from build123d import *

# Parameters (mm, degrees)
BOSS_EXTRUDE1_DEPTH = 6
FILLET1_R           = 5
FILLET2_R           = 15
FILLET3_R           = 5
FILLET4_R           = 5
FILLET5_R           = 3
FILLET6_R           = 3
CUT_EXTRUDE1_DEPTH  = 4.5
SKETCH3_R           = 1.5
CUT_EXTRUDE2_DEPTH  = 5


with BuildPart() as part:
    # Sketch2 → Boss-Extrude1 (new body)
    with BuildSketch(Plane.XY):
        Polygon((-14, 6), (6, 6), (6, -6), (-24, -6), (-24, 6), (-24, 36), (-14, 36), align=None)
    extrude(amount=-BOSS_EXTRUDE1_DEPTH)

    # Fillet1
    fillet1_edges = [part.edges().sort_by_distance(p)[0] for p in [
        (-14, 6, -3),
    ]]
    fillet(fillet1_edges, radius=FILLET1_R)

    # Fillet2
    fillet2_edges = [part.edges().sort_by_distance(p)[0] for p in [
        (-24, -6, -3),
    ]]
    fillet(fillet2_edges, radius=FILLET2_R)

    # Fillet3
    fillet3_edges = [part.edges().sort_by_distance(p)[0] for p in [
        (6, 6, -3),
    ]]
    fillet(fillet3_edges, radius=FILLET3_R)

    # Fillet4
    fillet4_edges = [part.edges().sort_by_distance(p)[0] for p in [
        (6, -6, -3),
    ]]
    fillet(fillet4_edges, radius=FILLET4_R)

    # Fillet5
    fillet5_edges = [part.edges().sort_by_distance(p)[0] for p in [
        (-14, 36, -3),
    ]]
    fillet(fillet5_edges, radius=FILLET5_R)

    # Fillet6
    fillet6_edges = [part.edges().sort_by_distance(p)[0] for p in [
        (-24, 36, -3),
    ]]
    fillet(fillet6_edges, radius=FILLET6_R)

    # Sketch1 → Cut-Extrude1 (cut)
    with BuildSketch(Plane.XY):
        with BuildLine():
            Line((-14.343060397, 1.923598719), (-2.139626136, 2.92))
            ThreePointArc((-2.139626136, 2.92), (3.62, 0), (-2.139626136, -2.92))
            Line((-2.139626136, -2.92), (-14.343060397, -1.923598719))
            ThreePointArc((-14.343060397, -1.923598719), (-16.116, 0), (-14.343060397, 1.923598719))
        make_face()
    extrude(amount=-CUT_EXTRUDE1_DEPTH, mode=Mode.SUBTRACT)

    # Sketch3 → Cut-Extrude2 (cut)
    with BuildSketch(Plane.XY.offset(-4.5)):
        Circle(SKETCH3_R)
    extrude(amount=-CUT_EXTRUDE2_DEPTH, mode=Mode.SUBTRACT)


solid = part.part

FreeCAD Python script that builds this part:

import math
import FreeCAD as App
import Part
import Sketcher
from FreeCAD import Vector


def edges_at(feature, points):
    """Names of the edges that pass closest to the given points."""
    edges = feature.Shape.Edges
    near = lambda p: min(range(len(edges)), key=lambda i: edges[i].distToShape(Part.Vertex(*p))[0])
    return sorted({f"Edge{near(p) + 1}" for p in points})


def add_polygon(sketch, points):
    """Adds a closed chain of lines whose ends are joined by coincident constraints."""
    first, n = sketch.GeometryCount, len(points)
    for a, b in zip(points, points[1:] + points[:1]):
        sketch.addGeometry(Part.LineSegment(App.Vector(*a, 0), App.Vector(*b, 0)), False)
    for i in range(n):
        sketch.addConstraint(Sketcher.Constraint("Coincident", first + i, 2, first + (i + 1) % n, 1))

doc = App.newDocument("Part")
body = doc.addObject("PartDesign::Body", "Body")

sketch1 = doc.addObject("Sketcher::SketchObject", "Sketch")
body.addObject(sketch1)
sketch1.AttachmentSupport = (doc.XY_Plane, [""])
sketch1.MapMode = "FlatFace"
add_polygon(sketch1, [(6, 6), (-14, 6), (-14, 36), (-24, 36), (-24, -6), (6, -6)])
sketch1.addConstraint([
    Sketcher.Constraint("Horizontal", 0),
    Sketcher.Constraint("Vertical", 1),
    Sketcher.Constraint("Horizontal", 2),
    Sketcher.Constraint("Vertical", 3),
    Sketcher.Constraint("Horizontal", 4),
    Sketcher.Constraint("Vertical", 5),
    Sketcher.Constraint("Equal", 4, 1),
    Sketcher.Constraint("DistanceX", 0, 2, 0, 1, 20.0),
    Sketcher.Constraint("DistanceX", 2, 2, 2, 1, 10.0),
    Sketcher.Constraint("DistanceY", 3, 2, 3, 1, 42.0),
    Sketcher.Constraint("DistanceX", 0, 2, -1, 1, 14.0),
    Sketcher.Constraint("DistanceY", -1, 1, 0, 2, 6.0),
])
pad1 = doc.addObject("PartDesign::Pad", "Pad")
body.addObject(pad1)
pad1.Profile = sketch1
pad1.Length = 6
pad1.Reversed = True
doc.recompute()

fillet = doc.addObject("PartDesign::Fillet", "Fillet")
body.addObject(fillet)
fillet.Base = (pad1, edges_at(pad1, [(-14, 6, -3)]))
fillet.Radius = 5
doc.recompute()

fillet2 = doc.addObject("PartDesign::Fillet", "Fillet001")
body.addObject(fillet2)
fillet2.Base = (fillet, edges_at(fillet, [(-24, -6, -3)]))
fillet2.Radius = 15
doc.recompute()

fillet3 = doc.addObject("PartDesign::Fillet", "Fillet002")
body.addObject(fillet3)
fillet3.Base = (fillet2, edges_at(fillet2, [(6, 6, -3)]))
fillet3.Radius = 5
doc.recompute()

fillet4 = doc.addObject("PartDesign::Fillet", "Fillet003")
body.addObject(fillet4)
fillet4.Base = (fillet3, edges_at(fillet3, [(6, -6, -3)]))
fillet4.Radius = 5
doc.recompute()

fillet5 = doc.addObject("PartDesign::Fillet", "Fillet004")
body.addObject(fillet5)
fillet5.Base = (fillet4, edges_at(fillet4, [(-14, 36, -3)]))
fillet5.Radius = 3
doc.recompute()

fillet6 = doc.addObject("PartDesign::Fillet", "Fillet005")
body.addObject(fillet6)
fillet6.Base = (fillet5, edges_at(fillet5, [(-24, 36, -3)]))
fillet6.Radius = 3

sketch2 = doc.addObject("Sketcher::SketchObject", "Sketch001")
body.addObject(sketch2)
sketch2.AttachmentSupport = (doc.XY_Plane, [""])
sketch2.MapMode = "FlatFace"
sketch2.addGeometry([
    Part.LineSegment(Vector(-2.139626, 2.92, 0), Vector(-14.34306, 1.923599, 0)),
    Part.ArcOfCircle(Part.Circle(Vector(-14.186, 0, 0), Vector(0, 0, 1), 1.93), math.radians(94.667803), math.radians(265.332197)),
    Part.LineSegment(Vector(-14.34306, -1.923599, 0), Vector(-2.139626, -2.92, 0)),
    Part.ArcOfCircle(Part.Circle(Vector(0, 0, 0), Vector(0, 0, 1), 3.62), math.radians(-126.232048), math.radians(126.232048)),
], False)
sketch2.addConstraint([
    Sketcher.Constraint("Tangent", 0, 2, 1, 1),
    Sketcher.Constraint("Tangent", 1, 2, 2, 1),
    Sketcher.Constraint("Coincident", 2, 2, 3, 1),
    Sketcher.Constraint("Coincident", 3, 2, 0, 1),
    Sketcher.Constraint("Coincident", 3, 3, -1, 1),
    Sketcher.Constraint("Symmetric", 0, 2, 1, 2, -1),
    Sketcher.Constraint("Radius", 1, 1.93),
    Sketcher.Constraint("Radius", 3, 3.62),
    Sketcher.Constraint("DistanceY", 2, 2, -1, 1, 2.92),
    Sketcher.Constraint("DistanceX", 1, 3, -1, 1, 14.186),
])
pocket1 = doc.addObject("PartDesign::Pocket", "Pocket")
body.addObject(pocket1)
pocket1.Profile = sketch2
pocket1.Length = 4.5

sketch3 = doc.addObject("Sketcher::SketchObject", "Sketch002")
body.addObject(sketch3)
sketch3.AttachmentSupport = (doc.XY_Plane, [""])
sketch3.MapMode = "FlatFace"
sketch3.AttachmentOffset = App.Placement(Vector(0, 0, -4.5), App.Rotation())
sketch3.addGeometry(Part.Circle(Vector(0, 0, 0), Vector(0, 0, 1), 1.5), False)
sketch3.addConstraint([
    Sketcher.Constraint("Coincident", 0, 3, -1, 1),
    Sketcher.Constraint("Diameter", 0, 3.0),
])
pocket2 = doc.addObject("PartDesign::Pocket", "Pocket001")
body.addObject(pocket2)
pocket2.Profile = sketch3
pocket2.Length = 5

doc.recompute()
